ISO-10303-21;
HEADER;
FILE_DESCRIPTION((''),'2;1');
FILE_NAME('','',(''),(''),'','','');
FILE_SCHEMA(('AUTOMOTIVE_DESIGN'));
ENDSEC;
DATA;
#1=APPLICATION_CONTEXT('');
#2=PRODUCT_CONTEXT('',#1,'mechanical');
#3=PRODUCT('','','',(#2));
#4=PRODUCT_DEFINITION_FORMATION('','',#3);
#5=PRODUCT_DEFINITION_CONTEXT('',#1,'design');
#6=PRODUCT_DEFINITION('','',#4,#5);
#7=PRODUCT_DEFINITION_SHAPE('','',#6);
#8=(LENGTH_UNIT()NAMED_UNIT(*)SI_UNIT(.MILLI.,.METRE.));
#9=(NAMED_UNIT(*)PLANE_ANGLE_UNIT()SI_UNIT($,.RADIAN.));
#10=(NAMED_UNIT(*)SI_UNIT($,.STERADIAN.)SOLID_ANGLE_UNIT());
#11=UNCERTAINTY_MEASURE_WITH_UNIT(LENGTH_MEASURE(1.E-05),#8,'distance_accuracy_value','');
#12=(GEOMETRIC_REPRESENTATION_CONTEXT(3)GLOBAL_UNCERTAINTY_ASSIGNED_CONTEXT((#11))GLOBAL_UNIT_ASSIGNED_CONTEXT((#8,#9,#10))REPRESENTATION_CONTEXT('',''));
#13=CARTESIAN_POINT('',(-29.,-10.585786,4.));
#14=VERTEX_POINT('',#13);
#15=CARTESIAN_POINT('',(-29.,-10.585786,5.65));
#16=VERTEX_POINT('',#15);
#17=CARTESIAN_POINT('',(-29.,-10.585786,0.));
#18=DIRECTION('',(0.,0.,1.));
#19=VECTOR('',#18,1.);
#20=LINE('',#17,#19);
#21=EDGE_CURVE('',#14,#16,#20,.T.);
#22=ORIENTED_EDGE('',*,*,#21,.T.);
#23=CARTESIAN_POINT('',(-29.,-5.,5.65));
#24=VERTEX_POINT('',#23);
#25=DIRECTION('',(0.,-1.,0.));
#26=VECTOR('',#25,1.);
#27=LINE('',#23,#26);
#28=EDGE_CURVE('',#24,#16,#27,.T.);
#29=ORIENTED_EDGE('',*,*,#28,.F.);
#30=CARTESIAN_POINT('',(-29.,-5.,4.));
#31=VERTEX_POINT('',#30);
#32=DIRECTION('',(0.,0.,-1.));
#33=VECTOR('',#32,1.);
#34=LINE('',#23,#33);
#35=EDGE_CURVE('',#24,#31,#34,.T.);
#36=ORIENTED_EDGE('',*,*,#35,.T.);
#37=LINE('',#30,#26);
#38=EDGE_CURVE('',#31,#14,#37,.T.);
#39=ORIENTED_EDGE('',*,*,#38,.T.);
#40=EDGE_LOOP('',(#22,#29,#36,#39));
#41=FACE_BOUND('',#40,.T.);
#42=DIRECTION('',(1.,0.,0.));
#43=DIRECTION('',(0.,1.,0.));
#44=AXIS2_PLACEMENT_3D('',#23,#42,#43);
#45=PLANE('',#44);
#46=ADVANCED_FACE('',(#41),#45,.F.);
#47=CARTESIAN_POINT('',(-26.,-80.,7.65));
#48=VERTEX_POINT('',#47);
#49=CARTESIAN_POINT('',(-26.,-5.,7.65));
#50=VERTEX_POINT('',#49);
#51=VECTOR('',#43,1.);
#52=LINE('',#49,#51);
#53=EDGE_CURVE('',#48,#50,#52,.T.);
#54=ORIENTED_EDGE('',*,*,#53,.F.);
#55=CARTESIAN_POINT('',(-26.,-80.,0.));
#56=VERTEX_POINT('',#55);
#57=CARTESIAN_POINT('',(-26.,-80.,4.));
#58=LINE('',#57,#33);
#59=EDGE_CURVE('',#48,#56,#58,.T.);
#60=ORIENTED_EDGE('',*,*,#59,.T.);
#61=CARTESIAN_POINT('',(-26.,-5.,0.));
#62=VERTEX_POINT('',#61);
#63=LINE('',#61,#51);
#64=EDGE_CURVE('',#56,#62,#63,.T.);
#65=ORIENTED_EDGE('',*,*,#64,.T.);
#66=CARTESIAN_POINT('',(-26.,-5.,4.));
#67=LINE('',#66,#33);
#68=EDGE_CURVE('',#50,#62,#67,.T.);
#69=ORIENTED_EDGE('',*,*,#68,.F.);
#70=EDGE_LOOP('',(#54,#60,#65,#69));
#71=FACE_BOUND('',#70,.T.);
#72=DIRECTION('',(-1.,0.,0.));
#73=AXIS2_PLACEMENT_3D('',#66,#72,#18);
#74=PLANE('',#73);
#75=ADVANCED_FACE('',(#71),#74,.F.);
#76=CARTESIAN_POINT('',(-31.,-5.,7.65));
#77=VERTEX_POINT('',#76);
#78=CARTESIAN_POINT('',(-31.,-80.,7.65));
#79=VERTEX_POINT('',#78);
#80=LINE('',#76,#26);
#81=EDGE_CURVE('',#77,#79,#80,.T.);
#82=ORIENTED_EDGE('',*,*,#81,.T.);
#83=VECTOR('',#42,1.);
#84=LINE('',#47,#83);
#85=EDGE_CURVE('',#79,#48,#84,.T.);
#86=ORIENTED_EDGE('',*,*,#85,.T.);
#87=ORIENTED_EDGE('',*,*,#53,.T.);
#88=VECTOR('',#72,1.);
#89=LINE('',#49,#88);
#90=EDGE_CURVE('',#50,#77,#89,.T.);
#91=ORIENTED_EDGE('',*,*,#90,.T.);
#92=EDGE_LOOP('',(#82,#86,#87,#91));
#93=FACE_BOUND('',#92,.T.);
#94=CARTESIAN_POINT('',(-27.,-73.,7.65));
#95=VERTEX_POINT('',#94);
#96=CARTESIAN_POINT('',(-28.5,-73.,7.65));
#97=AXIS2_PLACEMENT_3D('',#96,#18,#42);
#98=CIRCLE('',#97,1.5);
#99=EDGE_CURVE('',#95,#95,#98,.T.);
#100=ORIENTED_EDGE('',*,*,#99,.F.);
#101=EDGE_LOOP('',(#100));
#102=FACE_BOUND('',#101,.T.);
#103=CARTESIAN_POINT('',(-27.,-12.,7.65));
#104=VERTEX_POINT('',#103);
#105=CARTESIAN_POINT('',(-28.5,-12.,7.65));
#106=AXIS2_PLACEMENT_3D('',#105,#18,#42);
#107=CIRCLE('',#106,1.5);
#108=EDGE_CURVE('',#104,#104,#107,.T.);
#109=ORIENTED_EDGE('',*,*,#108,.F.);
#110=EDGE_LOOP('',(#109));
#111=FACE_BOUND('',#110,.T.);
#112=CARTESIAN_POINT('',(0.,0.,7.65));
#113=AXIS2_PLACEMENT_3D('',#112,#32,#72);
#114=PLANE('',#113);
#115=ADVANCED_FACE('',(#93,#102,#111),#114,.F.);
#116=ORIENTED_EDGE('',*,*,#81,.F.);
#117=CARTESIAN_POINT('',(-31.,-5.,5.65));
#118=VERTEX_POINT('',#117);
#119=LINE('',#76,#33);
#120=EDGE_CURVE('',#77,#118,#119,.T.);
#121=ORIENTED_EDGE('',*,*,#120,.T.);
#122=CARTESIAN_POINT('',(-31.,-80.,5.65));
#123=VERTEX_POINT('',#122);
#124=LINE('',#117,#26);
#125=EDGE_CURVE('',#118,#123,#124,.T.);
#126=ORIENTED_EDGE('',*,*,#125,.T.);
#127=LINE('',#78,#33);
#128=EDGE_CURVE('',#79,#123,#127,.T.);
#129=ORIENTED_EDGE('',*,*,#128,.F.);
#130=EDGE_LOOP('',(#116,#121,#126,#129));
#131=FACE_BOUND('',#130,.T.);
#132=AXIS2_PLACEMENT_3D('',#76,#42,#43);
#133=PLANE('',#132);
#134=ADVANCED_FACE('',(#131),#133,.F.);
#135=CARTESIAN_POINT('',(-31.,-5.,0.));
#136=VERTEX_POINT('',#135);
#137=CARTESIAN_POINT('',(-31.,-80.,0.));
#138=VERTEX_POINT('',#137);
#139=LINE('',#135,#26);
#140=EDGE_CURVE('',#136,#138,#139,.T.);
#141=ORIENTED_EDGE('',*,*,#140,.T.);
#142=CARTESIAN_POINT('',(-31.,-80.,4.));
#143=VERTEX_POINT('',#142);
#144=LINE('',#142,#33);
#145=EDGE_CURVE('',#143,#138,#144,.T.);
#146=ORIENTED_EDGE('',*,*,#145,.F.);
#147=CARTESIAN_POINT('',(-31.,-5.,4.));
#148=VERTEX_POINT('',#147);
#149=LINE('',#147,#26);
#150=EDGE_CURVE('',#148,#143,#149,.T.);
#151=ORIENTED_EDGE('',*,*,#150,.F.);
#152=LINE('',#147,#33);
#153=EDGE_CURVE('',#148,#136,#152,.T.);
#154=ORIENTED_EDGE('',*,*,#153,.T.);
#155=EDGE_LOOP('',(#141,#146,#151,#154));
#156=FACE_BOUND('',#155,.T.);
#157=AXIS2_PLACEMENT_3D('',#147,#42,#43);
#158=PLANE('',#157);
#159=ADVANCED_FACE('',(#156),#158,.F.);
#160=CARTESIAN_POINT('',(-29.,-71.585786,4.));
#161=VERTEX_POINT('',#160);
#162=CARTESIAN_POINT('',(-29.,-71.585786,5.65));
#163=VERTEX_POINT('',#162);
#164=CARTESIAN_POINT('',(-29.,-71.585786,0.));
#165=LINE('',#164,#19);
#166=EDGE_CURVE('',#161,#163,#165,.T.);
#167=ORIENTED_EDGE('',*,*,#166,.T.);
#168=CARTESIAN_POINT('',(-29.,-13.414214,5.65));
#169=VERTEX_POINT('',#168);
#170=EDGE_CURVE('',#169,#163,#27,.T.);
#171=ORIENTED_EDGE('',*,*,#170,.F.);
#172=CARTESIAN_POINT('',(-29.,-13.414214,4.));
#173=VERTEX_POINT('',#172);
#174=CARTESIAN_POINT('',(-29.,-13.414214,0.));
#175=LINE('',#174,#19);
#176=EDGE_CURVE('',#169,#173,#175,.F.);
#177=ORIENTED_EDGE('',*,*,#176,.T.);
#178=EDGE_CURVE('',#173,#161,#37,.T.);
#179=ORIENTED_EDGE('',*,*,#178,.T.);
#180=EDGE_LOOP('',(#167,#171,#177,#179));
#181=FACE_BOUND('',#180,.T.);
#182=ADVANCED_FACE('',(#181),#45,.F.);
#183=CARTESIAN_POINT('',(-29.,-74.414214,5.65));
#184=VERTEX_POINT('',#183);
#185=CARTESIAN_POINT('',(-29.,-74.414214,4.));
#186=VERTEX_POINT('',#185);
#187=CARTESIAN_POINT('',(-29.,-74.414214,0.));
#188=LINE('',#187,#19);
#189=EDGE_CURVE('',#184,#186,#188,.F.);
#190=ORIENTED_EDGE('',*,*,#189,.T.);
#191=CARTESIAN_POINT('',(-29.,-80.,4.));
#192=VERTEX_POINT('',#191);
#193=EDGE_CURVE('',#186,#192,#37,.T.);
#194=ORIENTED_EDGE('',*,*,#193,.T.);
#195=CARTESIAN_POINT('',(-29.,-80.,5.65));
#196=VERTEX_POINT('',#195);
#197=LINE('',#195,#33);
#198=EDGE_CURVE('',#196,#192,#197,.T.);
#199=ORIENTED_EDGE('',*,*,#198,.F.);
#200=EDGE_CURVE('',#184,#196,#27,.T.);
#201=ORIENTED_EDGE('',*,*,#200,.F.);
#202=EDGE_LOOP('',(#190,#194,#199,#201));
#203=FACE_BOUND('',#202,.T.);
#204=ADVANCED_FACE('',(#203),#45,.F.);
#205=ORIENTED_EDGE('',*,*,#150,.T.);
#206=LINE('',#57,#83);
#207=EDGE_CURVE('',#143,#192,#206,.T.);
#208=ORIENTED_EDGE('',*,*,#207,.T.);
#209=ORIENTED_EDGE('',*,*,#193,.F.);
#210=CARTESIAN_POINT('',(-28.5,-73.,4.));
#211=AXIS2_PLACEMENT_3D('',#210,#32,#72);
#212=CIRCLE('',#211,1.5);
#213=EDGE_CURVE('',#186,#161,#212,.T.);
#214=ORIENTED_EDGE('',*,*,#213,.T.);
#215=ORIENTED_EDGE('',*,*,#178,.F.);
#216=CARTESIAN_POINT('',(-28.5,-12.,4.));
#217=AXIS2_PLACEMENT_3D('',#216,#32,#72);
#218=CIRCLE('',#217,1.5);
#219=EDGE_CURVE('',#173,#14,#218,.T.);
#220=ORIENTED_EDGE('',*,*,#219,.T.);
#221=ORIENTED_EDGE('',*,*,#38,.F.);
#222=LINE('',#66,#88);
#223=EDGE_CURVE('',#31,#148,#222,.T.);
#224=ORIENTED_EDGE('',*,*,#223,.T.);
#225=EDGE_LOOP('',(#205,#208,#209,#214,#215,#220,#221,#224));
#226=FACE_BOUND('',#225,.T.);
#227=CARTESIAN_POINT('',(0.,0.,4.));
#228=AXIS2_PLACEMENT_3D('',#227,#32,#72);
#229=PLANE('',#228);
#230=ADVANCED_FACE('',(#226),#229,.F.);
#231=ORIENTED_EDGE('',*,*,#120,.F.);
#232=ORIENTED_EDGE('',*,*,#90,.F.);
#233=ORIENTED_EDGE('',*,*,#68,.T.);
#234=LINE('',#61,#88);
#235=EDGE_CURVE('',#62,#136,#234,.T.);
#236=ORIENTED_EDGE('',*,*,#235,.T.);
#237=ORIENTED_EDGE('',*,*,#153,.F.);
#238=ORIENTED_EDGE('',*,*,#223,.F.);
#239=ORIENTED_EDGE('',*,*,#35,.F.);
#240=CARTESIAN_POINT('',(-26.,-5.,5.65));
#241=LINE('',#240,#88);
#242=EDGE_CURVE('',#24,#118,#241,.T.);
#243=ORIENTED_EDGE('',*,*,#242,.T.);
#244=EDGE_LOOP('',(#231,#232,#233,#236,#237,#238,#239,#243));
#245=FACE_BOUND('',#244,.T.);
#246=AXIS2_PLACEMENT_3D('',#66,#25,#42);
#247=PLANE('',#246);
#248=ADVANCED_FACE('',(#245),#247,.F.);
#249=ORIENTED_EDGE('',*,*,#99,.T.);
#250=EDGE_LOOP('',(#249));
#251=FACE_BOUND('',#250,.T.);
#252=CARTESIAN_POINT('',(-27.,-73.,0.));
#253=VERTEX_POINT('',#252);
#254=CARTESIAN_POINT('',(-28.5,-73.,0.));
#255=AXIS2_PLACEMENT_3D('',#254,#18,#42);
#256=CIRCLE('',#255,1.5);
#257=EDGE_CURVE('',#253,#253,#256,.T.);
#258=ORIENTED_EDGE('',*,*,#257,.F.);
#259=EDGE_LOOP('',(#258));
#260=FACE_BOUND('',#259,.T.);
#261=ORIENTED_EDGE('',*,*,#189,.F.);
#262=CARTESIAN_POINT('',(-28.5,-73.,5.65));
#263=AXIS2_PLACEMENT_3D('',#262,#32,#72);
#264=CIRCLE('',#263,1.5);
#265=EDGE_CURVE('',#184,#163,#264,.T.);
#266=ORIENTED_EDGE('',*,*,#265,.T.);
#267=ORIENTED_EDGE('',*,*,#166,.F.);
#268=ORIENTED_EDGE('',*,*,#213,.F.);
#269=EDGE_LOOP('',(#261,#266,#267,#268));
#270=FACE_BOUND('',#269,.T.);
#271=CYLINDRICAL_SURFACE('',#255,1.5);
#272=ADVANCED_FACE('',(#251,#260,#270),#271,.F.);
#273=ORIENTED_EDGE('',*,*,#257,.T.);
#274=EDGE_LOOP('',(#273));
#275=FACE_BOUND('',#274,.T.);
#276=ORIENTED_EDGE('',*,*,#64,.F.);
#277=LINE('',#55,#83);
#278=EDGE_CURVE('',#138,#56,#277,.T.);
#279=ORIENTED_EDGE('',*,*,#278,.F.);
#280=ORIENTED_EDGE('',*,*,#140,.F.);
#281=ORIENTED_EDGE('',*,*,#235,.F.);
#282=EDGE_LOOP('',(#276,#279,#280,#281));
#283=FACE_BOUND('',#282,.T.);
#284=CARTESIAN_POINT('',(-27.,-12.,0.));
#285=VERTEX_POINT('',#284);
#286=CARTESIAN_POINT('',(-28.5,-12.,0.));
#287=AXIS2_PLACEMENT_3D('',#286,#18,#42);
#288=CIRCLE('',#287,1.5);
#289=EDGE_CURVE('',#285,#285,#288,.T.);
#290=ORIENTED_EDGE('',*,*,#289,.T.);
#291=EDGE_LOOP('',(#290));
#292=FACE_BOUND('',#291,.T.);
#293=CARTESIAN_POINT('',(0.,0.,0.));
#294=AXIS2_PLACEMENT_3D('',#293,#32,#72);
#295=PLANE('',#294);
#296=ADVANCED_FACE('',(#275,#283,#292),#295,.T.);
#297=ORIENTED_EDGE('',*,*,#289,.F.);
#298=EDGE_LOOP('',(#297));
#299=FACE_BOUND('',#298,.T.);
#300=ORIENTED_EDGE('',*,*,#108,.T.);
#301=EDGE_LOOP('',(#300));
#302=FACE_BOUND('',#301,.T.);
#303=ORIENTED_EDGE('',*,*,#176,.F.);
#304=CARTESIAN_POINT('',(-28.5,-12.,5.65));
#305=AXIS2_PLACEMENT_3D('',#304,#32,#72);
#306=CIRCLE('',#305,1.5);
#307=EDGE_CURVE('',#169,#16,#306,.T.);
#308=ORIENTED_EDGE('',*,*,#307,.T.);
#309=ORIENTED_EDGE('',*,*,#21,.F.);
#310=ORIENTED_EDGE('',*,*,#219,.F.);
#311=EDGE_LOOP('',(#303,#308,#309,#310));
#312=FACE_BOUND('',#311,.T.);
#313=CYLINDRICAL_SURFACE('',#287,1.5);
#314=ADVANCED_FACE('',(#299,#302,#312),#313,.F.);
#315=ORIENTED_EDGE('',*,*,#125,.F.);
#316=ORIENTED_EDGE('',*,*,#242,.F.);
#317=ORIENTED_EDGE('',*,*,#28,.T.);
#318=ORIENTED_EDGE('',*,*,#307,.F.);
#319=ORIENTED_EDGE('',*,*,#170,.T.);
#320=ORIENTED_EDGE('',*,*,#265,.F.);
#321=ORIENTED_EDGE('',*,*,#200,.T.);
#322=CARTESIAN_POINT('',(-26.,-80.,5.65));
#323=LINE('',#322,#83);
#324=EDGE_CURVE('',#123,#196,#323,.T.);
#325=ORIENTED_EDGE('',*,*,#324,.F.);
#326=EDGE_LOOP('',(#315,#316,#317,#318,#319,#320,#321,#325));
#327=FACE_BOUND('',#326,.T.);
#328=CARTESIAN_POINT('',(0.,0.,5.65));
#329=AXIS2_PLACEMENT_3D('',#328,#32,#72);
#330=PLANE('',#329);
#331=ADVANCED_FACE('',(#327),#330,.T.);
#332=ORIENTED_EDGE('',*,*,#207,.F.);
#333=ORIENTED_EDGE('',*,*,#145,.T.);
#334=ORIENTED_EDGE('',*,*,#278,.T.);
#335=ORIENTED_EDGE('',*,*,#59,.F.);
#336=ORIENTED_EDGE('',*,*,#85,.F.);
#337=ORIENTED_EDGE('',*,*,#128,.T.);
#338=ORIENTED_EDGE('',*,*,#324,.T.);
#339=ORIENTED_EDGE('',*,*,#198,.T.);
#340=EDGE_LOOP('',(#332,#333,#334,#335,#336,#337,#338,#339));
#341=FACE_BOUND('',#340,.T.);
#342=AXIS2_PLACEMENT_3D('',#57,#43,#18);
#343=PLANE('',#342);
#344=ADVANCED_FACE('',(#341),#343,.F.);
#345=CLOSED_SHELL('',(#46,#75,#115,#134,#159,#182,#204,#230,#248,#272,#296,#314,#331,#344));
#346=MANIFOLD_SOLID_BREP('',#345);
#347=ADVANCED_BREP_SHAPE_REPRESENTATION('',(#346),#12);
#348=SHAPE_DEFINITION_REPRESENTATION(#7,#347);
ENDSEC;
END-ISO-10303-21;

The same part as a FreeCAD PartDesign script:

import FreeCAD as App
import Part
import Sketcher
Q = App.Units.Quantity


def add_polygon(sketch, points):
    """Adds a closed chain of lines whose ends are joined by coincident constraints."""
    first, n = sketch.GeometryCount, len(points)
    for a, b in zip(points, points[1:] + points[:1]):
        sketch.addGeometry(Part.LineSegment(App.Vector(*a, 0), App.Vector(*b, 0)), False)
    for i in range(n):
        sketch.addConstraint(Sketcher.Constraint("Coincident", first + i, 2, first + (i + 1) % n, 1))

doc = App.newDocument("Part")
body = doc.addObject("PartDesign::Body", "Body")

# Sketch on XY plane
sketch1 = doc.addObject("Sketcher::SketchObject", "Sketch")
body.addObject(sketch1)
sketch1.AttachmentSupport = (doc.XY_Plane, [""])
sketch1.MapMode = "FlatFace"
add_polygon(sketch1, [(-31, -5), (-31, -80), (-26, -80), (-26, -5)])  # lines 0-3
sketch1.addConstraint([
    Sketcher.Constraint("Vertical", 0),
    Sketcher.Constraint("Horizontal", 1),
    Sketcher.Constraint("Vertical", 2),
    Sketcher.Constraint("Horizontal", 3),
    Sketcher.Constraint("DistanceX", 1, 1, 1, 2, Q("5 mm")),
    Sketcher.Constraint("DistanceY", 0, 2, 0, 1, Q("75 mm")),
    Sketcher.Constraint("DistanceX", 0, 2, -1, 1, Q("31 mm")),
    Sketcher.Constraint("DistanceY", 0, 2, -1, 1, Q("80 mm")),
])
pad1 = doc.addObject("PartDesign::Pad", "Pad")
body.addObject(pad1)
pad1.Profile = sketch1
pad1.Length = 4

# Sketch on XY plane
sketch2 = doc.addObject("Sketcher::SketchObject", "Sketch001")
body.addObject(sketch2)
sketch2.AttachmentSupport = (doc.XY_Plane, [""])
sketch2.MapMode = "FlatFace"
sketch2.AttachmentOffset = App.Placement(App.Vector(0, 0, 4), App.Rotation())
add_polygon(sketch2, [(-29, -5), (-29, -80), (-26, -80), (-26, -5)])  # lines 0-3
sketch2.addConstraint([
    Sketcher.Constraint("Vertical", 0),
    Sketcher.Constraint("Horizontal", 1),
    Sketcher.Constraint("Vertical", 2),
    Sketcher.Constraint("Horizontal", 3),
    Sketcher.Constraint("DistanceX", 1, 1, 1, 2, Q("3 mm")),
    Sketcher.Constraint("DistanceY", 0, 2, 0, 1, Q("75 mm")),
    Sketcher.Constraint("DistanceX", 0, 2, -1, 1, Q("29 mm")),
    Sketcher.Constraint("DistanceY", 0, 2, -1, 1, Q("80 mm")),
])
pad2 = doc.addObject("PartDesign::Pad", "Pad001")
body.addObject(pad2)
pad2.Profile = sketch2
pad2.Length = 1.65

# Sketch on XY plane
sketch3 = doc.addObject("Sketcher::SketchObject", "Sketch002")
body.addObject(sketch3)
sketch3.AttachmentSupport = (doc.XY_Plane, [""])
sketch3.MapMode = "FlatFace"
sketch3.AttachmentOffset = App.Placement(App.Vector(0, 0, 5.65), App.Rotation())
add_polygon(sketch3, [(-31, -5), (-31, -80), (-26, -80), (-26, -5)])  # lines 0-3
sketch3.addConstraint([
    Sketcher.Constraint("Vertical", 0),
    Sketcher.Constraint("Horizontal", 1),
    Sketcher.Constraint("Vertical", 2),
    Sketcher.Constraint("Horizontal", 3),
    Sketcher.Constraint("DistanceX", 1, 1, 1, 2, Q("5 mm")),
    Sketcher.Constraint("DistanceY", 0, 2, 0, 1, Q("75 mm")),
    Sketcher.Constraint("DistanceX", 0, 2, -1, 1, Q("31 mm")),
    Sketcher.Constraint("DistanceY", 0, 2, -1, 1, Q("80 mm")),
])
pad3 = doc.addObject("PartDesign::Pad", "Pad002")
body.addObject(pad3)
pad3.Profile = sketch3
pad3.Length = 2

# Sketch on XY plane
sketch4 = doc.addObject("Sketcher::SketchObject", "Sketch003")
body.addObject(sketch4)
sketch4.AttachmentSupport = (doc.XY_Plane, [""])
sketch4.MapMode = "FlatFace"
sketch4.AttachmentOffset = App.Placement(App.Vector(0, 0, 7.65), App.Rotation())
sketch4.addGeometry([
    Part.Circle(App.Vector(-28.5, -73, 0), App.Vector(0, 0, 1), 1.5),
    Part.Circle(App.Vector(-28.5, -12, 0), App.Vector(0, 0, 1), 1.5),
], False)
sketch4.addConstraint([
    Sketcher.Constraint("Equal", 0, 1),
    Sketcher.Constraint("Vertical", 0, 3, 1, 3),
    Sketcher.Constraint("Diameter", 0, Q("3 mm")),
    Sketcher.Constraint("DistanceY", 0, 3, -1, 1, Q("73 mm")),
    Sketcher.Constraint("DistanceY", 1, 3, -1, 1, Q("12 mm")),
    Sketcher.Constraint("DistanceX", 0, 3, -1, 1, Q("28.5 mm")),
])
pocket1 = doc.addObject("PartDesign::Pocket", "Pocket")
body.addObject(pocket1)
pocket1.Profile = sketch4
pocket1.Type = "ThroughAll"

doc.recompute()
